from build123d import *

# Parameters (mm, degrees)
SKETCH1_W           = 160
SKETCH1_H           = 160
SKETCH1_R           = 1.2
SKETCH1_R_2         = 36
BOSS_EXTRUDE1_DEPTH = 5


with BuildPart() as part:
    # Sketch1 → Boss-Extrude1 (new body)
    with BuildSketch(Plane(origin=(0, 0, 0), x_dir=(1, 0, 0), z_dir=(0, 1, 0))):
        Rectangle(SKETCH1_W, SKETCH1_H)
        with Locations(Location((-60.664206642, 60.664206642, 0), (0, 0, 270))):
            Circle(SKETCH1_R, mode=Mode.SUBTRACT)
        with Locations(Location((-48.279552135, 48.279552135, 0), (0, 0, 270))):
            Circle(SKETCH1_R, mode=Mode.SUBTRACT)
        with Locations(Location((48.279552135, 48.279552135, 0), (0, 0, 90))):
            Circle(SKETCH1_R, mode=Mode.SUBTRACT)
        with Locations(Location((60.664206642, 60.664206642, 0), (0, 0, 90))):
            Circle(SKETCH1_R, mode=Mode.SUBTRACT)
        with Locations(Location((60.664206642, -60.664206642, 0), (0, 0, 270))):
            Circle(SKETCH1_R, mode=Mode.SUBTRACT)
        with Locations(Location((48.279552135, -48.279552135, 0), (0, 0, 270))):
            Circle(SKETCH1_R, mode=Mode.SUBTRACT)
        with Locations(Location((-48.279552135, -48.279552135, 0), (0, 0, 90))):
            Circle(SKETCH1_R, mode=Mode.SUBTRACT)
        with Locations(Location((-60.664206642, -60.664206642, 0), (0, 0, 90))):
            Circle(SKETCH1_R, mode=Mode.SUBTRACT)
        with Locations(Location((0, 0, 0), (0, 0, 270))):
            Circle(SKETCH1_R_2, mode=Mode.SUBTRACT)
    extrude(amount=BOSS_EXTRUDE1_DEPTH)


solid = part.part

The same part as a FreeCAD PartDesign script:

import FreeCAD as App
import Part
import Sketcher
Q = App.Units.Quantity


def add_polygon(sketch, points):
    """Adds a closed chain of lines whose ends are joined by coincident constraints."""
    first, n = sketch.GeometryCount, len(points)
    for a, b in zip(points, points[1:] + points[:1]):
        sketch.addGeometry(Part.LineSegment(App.Vector(*a, 0), App.Vector(*b, 0)), False)
    for i in range(n):
        sketch.addConstraint(Sketcher.Constraint("Coincident", first + i, 2, first + (i + 1) % n, 1))

doc = App.newDocument("Part")
body = doc.addObject("PartDesign::Body", "Body")

# Sketch on XZ plane
sketch1 = body.newObject("Sketcher::SketchObject", "Sketch")
sketch1.AttachmentSupport = (doc.getObject("XZ_Plane"), [""])
sketch1.MapMode = "FlatFace"
add_polygon(sketch1, [(-80, -80), (-80, 80), (80, 80), (80, -80)])  # lines 0-3
sketch1.addGeometry(Part.Circle(App.Vector(-60.7, 60.7, 0), App.Vector(0, 0, 1), 1.2), False)  # 4
sketch1.addGeometry(Part.Circle(App.Vector(-48.3, 48.3, 0), App.Vector(0, 0, 1), 1.2), False)  # 5
sketch1.addGeometry(Part.Circle(App.Vector(0, 0, 0), App.Vector(0, 0, 1), 36), False)  # 6
sketch1.addGeometry(Part.Circle(App.Vector(60.7, 60.7, 0), App.Vector(0, 0, 1), 1.2), False)  # 7
sketch1.addGeometry(Part.Circle(App.Vector(48.3, 48.3, 0), App.Vector(0, 0, 1), 1.2), False)  # 8
sketch1.addGeometry(Part.Circle(App.Vector(-48.3, -48.3, 0), App.Vector(0, 0, 1), 1.2), False)  # 9
sketch1.addGeometry(Part.Circle(App.Vector(-60.7, -60.7, 0), App.Vector(0, 0, 1), 1.2), False)  # 10
sketch1.addGeometry(Part.Circle(App.Vector(48.3, -48.3, 0), App.Vector(0, 0, 1), 1.2), False)  # 11
sketch1.addGeometry(Part.Circle(App.Vector(60.7, -60.7, 0), App.Vector(0, 0, 1), 1.2), False)  # 12
sketch1.addConstraint([
    Sketcher.Constraint("Vertical", 0),
    Sketcher.Constraint("Horizontal", 1),
    Sketcher.Constraint("Vertical", 2),
    Sketcher.Constraint("Horizontal", 3),
    Sketcher.Constraint("Coincident", 6, 3, -1, 1),
    Sketcher.Constraint("Equal", 4, 5),
    Sketcher.Constraint("Equal", 5, 7),
    Sketcher.Constraint("Equal", 7, 8),
    Sketcher.Constraint("Equal", 8, 9),
    Sketcher.Constraint("Equal", 9, 10),
    Sketcher.Constraint("Equal", 10, 11),
    Sketcher.Constraint("Equal", 11, 12),
    Sketcher.Constraint("Symmetric", 8, 3, 9, 3, -1, 1),
    Sketcher.Constraint("Symmetric", 7, 3, 10, 3, -1, 1),
    Sketcher.Constraint("Symmetric", 5, 3, 11, 3, -1, 1),
    Sketcher.Constraint("Symmetric", 4, 3, 12, 3, -1, 1),
    Sketcher.Constraint("Symmetric", 0, 2, 2, 2, -1, 1),
    Sketcher.Constraint("Symmetric", 4, 3, 7, 3, -2),
    Sketcher.Constraint("Symmetric", 5, 3, 8, 3, -2),
    Sketcher.Constraint("Equal", 3, 0),
    Sketcher.Constraint("Diameter", 6, Q("72 mm")),
    Sketcher.Constraint("Diameter", 4, Q("2.4 mm")),
    Sketcher.Constraint("DistanceX", 1, 1, 1, 2, Q("160 mm")),
    Sketcher.Constraint("DistanceX", 5, 3, 7, 3, Q("108.943759 mm")),
    Sketcher.Constraint("DistanceY", 9, 3, 4, 3, Q("108.943759 mm")),
    Sketcher.Constraint("DistanceX", 4, 3, -1, 1, Q("60.664207 mm")),
    Sketcher.Constraint("DistanceY", -1, 1, 4, 3, Q("60.664207 mm")),
])
pad1 = body.newObject("PartDesign::Pad", "Pad")
pad1.Profile = sketch1
pad1.Length = 5
pad1.Reversed = True

doc.recompute()
